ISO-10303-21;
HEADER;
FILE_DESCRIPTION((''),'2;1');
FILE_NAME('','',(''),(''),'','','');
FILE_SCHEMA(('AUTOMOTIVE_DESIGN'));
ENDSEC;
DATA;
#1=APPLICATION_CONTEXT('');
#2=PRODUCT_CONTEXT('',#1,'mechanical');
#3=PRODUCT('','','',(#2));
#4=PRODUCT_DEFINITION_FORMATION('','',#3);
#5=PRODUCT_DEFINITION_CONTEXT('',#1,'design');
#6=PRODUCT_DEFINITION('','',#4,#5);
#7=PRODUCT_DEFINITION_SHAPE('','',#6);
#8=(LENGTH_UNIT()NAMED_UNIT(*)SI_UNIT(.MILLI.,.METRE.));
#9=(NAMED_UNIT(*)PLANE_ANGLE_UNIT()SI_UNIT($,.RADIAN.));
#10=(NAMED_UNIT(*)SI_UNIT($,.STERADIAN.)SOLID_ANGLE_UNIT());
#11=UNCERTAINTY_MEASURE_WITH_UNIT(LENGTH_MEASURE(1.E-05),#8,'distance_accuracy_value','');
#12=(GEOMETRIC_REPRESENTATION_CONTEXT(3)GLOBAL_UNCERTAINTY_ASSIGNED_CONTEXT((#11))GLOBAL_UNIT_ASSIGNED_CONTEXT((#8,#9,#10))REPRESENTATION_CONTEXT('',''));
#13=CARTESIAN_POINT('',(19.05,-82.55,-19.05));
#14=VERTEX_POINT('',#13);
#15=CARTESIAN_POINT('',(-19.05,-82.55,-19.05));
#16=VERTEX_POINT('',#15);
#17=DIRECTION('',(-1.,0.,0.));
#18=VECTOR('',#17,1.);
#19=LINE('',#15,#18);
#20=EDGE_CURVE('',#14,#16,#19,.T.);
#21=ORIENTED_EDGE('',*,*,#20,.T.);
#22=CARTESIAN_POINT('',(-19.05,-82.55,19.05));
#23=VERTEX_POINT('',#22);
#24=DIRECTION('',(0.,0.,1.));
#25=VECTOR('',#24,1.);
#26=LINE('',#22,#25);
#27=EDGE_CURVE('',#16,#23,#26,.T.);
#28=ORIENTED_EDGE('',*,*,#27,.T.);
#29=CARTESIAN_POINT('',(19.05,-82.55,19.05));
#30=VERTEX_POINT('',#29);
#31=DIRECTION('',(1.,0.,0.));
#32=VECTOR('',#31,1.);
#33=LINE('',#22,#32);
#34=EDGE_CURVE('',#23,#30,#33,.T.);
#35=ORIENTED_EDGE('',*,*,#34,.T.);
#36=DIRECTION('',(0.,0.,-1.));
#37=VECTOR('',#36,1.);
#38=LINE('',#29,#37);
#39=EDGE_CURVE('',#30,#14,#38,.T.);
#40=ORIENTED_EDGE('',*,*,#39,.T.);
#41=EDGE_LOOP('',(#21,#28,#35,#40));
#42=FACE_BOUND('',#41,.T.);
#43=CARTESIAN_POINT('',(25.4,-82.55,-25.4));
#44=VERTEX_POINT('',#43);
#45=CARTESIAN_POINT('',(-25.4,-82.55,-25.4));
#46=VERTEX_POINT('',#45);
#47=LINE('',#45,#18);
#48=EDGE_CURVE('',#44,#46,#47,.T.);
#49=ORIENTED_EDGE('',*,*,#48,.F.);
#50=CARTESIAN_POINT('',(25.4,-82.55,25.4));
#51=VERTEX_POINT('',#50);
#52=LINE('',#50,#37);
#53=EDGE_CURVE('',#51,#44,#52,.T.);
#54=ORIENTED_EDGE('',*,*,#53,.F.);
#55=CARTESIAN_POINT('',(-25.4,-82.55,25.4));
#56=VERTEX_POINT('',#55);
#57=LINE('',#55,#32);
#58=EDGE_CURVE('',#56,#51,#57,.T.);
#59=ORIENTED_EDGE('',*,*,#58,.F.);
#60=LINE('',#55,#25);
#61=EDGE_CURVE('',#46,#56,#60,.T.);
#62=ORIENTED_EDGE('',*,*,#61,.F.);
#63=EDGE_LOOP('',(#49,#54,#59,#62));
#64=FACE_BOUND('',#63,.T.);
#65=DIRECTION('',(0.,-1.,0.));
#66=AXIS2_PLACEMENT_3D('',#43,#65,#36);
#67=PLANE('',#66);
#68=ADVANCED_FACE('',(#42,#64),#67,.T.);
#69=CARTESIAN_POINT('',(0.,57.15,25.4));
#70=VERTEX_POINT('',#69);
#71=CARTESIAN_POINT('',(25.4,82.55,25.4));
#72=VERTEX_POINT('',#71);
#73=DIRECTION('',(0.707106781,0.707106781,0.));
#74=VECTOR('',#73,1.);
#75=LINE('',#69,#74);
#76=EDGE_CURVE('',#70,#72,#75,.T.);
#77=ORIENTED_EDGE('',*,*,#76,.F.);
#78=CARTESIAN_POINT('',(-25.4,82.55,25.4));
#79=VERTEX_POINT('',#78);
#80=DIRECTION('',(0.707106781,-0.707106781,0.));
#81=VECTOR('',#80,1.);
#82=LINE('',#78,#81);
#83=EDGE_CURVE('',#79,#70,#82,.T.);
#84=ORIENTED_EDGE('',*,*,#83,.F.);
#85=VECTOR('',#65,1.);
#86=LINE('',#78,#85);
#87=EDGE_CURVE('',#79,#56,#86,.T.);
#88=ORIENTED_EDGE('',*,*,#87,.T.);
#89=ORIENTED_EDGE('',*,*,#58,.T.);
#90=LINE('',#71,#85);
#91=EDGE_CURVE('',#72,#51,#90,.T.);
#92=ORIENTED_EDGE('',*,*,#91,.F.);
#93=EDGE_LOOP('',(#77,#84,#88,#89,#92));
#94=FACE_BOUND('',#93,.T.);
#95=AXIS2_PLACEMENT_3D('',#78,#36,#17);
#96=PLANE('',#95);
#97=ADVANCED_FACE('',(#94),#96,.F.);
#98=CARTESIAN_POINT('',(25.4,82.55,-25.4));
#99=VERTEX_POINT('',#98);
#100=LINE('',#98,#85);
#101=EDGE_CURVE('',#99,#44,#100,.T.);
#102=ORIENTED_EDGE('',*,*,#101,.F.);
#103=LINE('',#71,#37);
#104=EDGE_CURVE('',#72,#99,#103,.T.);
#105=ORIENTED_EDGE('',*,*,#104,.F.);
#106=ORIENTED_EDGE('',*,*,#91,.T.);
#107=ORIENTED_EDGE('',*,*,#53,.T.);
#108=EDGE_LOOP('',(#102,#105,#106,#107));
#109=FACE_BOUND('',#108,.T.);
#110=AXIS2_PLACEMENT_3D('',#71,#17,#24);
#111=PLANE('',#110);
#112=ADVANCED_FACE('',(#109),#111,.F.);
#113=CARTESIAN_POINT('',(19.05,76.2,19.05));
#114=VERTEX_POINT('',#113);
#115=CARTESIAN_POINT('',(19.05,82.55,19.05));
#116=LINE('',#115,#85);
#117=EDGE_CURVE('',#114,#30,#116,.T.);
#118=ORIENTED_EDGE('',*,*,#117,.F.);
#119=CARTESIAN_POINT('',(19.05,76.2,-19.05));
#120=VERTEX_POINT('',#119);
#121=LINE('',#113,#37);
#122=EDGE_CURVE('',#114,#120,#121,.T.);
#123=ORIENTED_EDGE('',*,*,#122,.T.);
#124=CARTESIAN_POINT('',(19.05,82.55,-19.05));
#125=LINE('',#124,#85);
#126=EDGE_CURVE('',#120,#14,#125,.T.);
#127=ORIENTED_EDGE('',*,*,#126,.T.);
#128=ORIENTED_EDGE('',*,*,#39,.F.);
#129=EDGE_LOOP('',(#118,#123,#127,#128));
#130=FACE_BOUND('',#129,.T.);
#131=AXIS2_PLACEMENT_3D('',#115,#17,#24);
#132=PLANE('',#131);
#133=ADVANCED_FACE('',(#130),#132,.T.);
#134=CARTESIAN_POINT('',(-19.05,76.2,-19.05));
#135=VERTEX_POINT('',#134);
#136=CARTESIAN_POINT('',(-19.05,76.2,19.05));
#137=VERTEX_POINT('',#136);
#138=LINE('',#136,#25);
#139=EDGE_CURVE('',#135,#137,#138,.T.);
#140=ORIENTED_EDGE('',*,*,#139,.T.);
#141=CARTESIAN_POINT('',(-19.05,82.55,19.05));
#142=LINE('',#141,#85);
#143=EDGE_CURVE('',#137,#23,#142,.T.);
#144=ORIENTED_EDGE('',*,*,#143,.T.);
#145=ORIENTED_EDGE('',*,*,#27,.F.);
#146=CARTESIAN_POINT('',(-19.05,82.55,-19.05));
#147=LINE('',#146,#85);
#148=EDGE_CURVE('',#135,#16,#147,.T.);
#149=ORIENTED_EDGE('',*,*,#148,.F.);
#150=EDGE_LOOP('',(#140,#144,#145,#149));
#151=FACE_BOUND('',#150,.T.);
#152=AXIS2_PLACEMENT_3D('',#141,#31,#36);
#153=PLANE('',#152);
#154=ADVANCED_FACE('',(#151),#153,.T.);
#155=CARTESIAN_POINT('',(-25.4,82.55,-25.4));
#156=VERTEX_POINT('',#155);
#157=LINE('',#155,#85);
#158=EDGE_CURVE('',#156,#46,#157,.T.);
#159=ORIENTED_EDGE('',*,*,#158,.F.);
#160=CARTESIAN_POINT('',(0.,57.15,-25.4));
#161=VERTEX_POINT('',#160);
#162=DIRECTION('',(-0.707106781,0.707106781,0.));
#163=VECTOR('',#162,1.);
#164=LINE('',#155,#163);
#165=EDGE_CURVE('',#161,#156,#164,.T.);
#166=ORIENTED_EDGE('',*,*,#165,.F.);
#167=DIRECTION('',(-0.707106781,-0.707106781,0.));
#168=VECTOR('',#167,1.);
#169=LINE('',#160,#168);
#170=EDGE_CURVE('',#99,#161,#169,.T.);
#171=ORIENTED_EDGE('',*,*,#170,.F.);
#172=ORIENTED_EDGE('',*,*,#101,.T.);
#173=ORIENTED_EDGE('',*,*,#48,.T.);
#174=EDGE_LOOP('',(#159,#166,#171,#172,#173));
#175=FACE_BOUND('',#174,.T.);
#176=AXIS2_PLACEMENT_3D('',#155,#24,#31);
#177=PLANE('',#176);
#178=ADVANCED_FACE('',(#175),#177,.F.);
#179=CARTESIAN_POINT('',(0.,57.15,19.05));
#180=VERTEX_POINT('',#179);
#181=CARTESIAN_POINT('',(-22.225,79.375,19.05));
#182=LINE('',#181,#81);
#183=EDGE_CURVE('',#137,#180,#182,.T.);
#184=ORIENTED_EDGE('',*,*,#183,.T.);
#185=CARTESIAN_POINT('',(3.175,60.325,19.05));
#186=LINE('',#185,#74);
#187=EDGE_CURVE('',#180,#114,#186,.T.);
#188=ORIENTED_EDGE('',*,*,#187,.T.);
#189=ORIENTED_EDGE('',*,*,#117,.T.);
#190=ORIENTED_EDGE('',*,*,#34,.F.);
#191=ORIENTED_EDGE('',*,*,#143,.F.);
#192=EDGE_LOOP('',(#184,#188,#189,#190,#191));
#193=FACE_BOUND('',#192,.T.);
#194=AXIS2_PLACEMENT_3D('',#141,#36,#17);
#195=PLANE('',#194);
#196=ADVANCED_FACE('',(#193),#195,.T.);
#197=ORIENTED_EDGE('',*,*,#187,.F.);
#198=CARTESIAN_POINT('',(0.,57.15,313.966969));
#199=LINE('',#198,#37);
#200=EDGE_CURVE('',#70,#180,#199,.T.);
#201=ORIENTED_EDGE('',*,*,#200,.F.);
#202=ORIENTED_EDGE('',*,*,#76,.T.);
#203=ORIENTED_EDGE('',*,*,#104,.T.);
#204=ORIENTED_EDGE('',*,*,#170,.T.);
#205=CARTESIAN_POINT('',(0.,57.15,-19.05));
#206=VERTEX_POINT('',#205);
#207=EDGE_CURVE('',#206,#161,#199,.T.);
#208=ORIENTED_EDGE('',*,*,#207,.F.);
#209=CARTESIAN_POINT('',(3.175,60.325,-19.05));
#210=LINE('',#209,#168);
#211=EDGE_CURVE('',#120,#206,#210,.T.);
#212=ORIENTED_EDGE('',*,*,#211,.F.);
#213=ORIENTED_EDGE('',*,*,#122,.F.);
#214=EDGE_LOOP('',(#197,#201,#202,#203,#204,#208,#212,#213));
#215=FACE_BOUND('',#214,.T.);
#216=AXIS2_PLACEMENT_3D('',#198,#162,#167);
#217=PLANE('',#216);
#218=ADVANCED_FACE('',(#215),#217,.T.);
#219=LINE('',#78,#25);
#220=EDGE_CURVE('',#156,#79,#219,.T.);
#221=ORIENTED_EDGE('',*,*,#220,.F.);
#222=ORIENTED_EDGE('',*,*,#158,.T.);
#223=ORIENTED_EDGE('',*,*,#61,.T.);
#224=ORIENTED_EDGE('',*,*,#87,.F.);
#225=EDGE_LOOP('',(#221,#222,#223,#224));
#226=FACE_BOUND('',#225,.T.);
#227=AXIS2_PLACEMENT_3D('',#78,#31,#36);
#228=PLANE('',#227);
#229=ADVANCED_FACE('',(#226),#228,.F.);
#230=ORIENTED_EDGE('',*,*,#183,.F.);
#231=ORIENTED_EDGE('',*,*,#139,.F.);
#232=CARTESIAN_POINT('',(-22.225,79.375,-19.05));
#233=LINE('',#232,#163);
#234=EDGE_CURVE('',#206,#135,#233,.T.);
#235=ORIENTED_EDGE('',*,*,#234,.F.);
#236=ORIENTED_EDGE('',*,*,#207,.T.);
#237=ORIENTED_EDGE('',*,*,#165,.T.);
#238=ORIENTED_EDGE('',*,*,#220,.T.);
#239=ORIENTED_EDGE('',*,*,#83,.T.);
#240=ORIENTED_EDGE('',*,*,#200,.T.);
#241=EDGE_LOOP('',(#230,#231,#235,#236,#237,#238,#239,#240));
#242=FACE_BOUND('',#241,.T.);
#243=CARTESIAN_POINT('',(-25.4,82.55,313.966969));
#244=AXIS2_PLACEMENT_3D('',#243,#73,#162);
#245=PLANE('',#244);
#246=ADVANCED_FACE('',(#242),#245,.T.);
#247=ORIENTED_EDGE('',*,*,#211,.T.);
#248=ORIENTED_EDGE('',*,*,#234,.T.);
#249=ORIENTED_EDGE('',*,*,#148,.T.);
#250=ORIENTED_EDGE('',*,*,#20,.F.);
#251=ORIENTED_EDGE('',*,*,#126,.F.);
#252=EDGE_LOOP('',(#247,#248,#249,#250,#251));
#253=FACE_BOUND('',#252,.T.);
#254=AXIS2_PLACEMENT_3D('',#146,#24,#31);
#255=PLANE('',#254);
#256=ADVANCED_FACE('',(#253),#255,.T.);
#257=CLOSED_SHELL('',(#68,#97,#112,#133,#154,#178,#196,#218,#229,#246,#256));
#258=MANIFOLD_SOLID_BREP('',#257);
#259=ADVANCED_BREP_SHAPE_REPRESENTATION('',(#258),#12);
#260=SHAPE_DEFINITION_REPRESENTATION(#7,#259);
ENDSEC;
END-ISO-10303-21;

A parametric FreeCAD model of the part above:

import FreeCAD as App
import Part
import Sketcher
from FreeCAD import Vector
Q = App.Units.Quantity

doc = App.newDocument("Part")
params = doc.addObject("Spreadsheet::Sheet", "Params")
for row, (alias, value) in enumerate([
    ("sketch1_width", "2 in"),
    ("sketch1_width2", "1.5 in"),
    ("pad1_length", "6.5 in"),
], start=1):
    params.set(f"A{row}", alias)
    params.set(f"B{row}", "=" + value)
    params.setAlias(f"B{row}", alias)

body = doc.addObject("PartDesign::Body", "Body")

# Sketch on XZ plane
sketch1 = body.newObject("Sketcher::SketchObject", "Sketch")
sketch1.AttachmentSupport = (doc.getObject("XZ_Plane"), [""])
sketch1.MapMode = "FlatFace"
sketch1.addGeometry([
    Part.LineSegment(Vector(-25.4, -25.4, 0), Vector(-25.4, 25.4, 0)),  # 0
    Part.LineSegment(Vector(-25.4, 25.4, 0), Vector(25.4, 25.4, 0)),  # 1
    Part.LineSegment(Vector(25.4, 25.4, 0), Vector(25.4, -25.4, 0)),  # 2
    Part.LineSegment(Vector(25.4, -25.4, 0), Vector(-25.4, -25.4, 0)),  # 3
    Part.LineSegment(Vector(19.05, 19.05, 0), Vector(-19.05, 19.05, 0)),  # 4
    Part.LineSegment(Vector(-19.05, 19.05, 0), Vector(-19.05, -19.05, 0)),  # 5
    Part.LineSegment(Vector(-19.05, -19.05, 0), Vector(19.05, -19.05, 0)),  # 6
    Part.LineSegment(Vector(19.05, -19.05, 0), Vector(19.05, 19.05, 0)),  # 7
], False)
sketch1.addConstraint([
    Sketcher.Constraint("Coincident", 0, 2, 1, 1),
    Sketcher.Constraint("Coincident", 1, 2, 2, 1),
    Sketcher.Constraint("Coincident", 2, 2, 3, 1),
    Sketcher.Constraint("Coincident", 3, 2, 0, 1),
    Sketcher.Constraint("Coincident", 4, 2, 5, 1),
    Sketcher.Constraint("Coincident", 5, 2, 6, 1),
    Sketcher.Constraint("Coincident", 6, 2, 7, 1),
    Sketcher.Constraint("Coincident", 7, 2, 4, 1),
    Sketcher.Constraint("Vertical", 0),
    Sketcher.Constraint("Horizontal", 1),
    Sketcher.Constraint("Vertical", 2),
    Sketcher.Constraint("Horizontal", 3),
    Sketcher.Constraint("Horizontal", 4),
    Sketcher.Constraint("Vertical", 5),
    Sketcher.Constraint("Horizontal", 6),
    Sketcher.Constraint("Vertical", 7),
    Sketcher.Constraint("Symmetric", 0, 2, 2, 2, -1, 1),
    Sketcher.Constraint("Symmetric", 4, 2, 6, 2, -1, 1),
    Sketcher.Constraint("Equal", 3, 0),
    Sketcher.Constraint("Equal", 6, 5),
    Sketcher.Constraint("DistanceX", 1, 1, 1, 2, Q("2 in")),
    Sketcher.Constraint("DistanceX", 4, 2, 4, 1, Q("1.5 in")),
])
sketch1.setExpression("Constraints[20]", "Params.sketch1_width")
sketch1.setExpression("Constraints[21]", "Params.sketch1_width2")
pad1 = body.newObject("PartDesign::Pad", "Pad")
pad1.Profile = sketch1
pad1.setExpression("Length", "Params.pad1_length")
pad1.Midplane = True

# Sketch on XY plane
sketch2 = body.newObject("Sketcher::SketchObject", "Sketch001")
sketch2.AttachmentSupport = (doc.getObject("XY_Plane"), [""])
sketch2.MapMode = "FlatFace"
sketch2.AttachmentOffset = App.Placement(Vector(0, 0, 1 * 25.4), App.Rotation())
sketch2.addGeometry([
    Part.LineSegment(Vector(-276.760445, 333.910445, 0), Vector(0, 57.15, 0)),  # 0
    Part.LineSegment(Vector(0, 57.15, 0), Vector(276.760445, 333.910445, 0)),  # 1
    Part.LineSegment(Vector(276.760445, 333.910445, 0), Vector(276.760445, 1044.865147, 0)),  # 2
    Part.LineSegment(Vector(276.760445, 1044.865147, 0), Vector(-276.760445, 1044.865147, 0)),  # 3
    Part.LineSegment(Vector(-276.760445, 1044.865147, 0), Vector(-276.760445, 333.910445, 0)),  # 4
], False)
sketch2.addConstraint([
    Sketcher.Constraint("Coincident", 0, 2, 1, 1),
    Sketcher.Constraint("Coincident", 1, 2, 2, 1),
    Sketcher.Constraint("Coincident", 2, 2, 3, 1),
    Sketcher.Constraint("Coincident", 3, 2, 4, 1),
    Sketcher.Constraint("Coincident", 4, 2, 0, 1),
    Sketcher.Constraint("Vertical", 2),
    Sketcher.Constraint("Horizontal", 3),
    Sketcher.Constraint("Vertical", 4),
    Sketcher.Constraint("Symmetric", 1, 2, 4, 2, -2),
    Sketcher.Constraint("PointOnObject", 0, 2, -2),
    Sketcher.Constraint("Perpendicular", 0, 1),
    Sketcher.Constraint("DistanceY", -1, 1, 0, 2, Q("2.25 in")),
    Sketcher.Constraint("DistanceY", 2, 1, 2, 2, Q("710.954702 mm")),
    Sketcher.Constraint("DistanceX", 3, 2, 3, 1, Q("553.520891 mm")),
])
pocket1 = body.newObject("PartDesign::Pocket", "Pocket")
pocket1.Profile = sketch2
pocket1.Type = "ThroughAll"
pocket1.Midplane = True

doc.recompute()
